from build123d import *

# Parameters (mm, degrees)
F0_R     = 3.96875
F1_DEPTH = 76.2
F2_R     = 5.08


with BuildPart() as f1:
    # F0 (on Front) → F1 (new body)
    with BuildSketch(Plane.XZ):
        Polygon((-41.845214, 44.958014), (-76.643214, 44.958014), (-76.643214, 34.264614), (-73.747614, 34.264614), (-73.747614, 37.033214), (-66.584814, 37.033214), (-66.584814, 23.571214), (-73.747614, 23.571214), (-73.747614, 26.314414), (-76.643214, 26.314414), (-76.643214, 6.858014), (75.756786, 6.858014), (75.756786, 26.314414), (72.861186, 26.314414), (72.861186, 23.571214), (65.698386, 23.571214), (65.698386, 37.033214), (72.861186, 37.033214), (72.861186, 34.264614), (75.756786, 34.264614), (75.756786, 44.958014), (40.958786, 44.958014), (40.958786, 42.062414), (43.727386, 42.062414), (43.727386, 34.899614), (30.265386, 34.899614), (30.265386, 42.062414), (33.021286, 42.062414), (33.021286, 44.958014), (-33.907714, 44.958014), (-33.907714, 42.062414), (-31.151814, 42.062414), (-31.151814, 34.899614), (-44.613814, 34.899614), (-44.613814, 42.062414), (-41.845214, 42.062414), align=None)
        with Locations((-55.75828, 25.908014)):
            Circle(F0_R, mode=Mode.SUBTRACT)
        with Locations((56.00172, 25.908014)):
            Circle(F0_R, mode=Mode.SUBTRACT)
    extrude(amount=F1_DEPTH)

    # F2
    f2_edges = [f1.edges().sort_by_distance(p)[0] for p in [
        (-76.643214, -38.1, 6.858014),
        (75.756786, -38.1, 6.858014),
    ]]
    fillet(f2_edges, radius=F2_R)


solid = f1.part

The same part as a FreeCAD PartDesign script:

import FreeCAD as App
import Part
import Sketcher
from FreeCAD import Vector
Q = App.Units.Quantity


def edges_at(feature, points):
    """Names of the edges that pass closest to the given points."""
    edges = feature.Shape.Edges
    near = lambda p: min(range(len(edges)), key=lambda i: edges[i].distToShape(Part.Vertex(*p))[0])
    return sorted({f"Edge{near(p) + 1}" for p in points})


def add_polygon(sketch, points):
    """Adds a closed chain of lines whose ends are joined by coincident constraints."""
    first, n = sketch.GeometryCount, len(points)
    for a, b in zip(points, points[1:] + points[:1]):
        sketch.addGeometry(Part.LineSegment(App.Vector(*a, 0), App.Vector(*b, 0)), False)
    for i in range(n):
        sketch.addConstraint(Sketcher.Constraint("Coincident", first + i, 2, first + (i + 1) % n, 1))

doc = App.newDocument("Part")
body = doc.addObject("PartDesign::Body", "Body")

# Sketch on XZ plane
sketch1 = body.newObject("Sketcher::SketchObject", "Sketch")
sketch1.AttachmentSupport = (doc.getObject("XZ_Plane"), [""])
sketch1.MapMode = "FlatFace"
add_polygon(sketch1, [(-41.8, 45), (-76.6, 45), (-76.6, 34.3), (-73.7, 34.3), (-73.7, 37), (-66.6, 37), (-66.6, 23.6), (-73.7, 23.6), (-73.7, 26.3), (-76.6, 26.3), (-76.6, 6.9), (75.8, 6.9), (75.8, 26.3), (72.9, 26.3), (72.9, 23.6), (65.7, 23.6), (65.7, 37), (72.9, 37), (72.9, 34.3), (75.8, 34.3), (75.8, 45), (41, 45), (41, 42.1), (43.7, 42.1), (43.7, 34.9), (30.3, 34.9), (30.3, 42.1), (33, 42.1), (33, 45), (-33.9, 45), (-33.9, 42.1), (-31.2, 42.1), (-31.2, 34.9), (-44.6, 34.9), (-44.6, 42.1), (-41.8, 42.1)])  # lines 0-35
sketch1.addGeometry(Part.Circle(Vector(-55.8, 25.9, 0), Vector(0, 0, 1), 4), False)  # 36
sketch1.addGeometry(Part.Circle(Vector(56, 25.9, 0), Vector(0, 0, 1), 4), False)  # 37
sketch1.addConstraint([
    Sketcher.Constraint("Horizontal", 0),
    Sketcher.Constraint("Vertical", 1),
    Sketcher.Constraint("Horizontal", 2),
    Sketcher.Constraint("Vertical", 3),
    Sketcher.Constraint("Horizontal", 4),
    Sketcher.Constraint("Vertical", 5),
    Sketcher.Constraint("Horizontal", 6),
    Sketcher.Constraint("Vertical", 7),
    Sketcher.Constraint("Horizontal", 8),
    Sketcher.Constraint("Vertical", 9),
    Sketcher.Constraint("Horizontal", 10),
    Sketcher.Constraint("Vertical", 11),
    Sketcher.Constraint("Horizontal", 12),
    Sketcher.Constraint("Vertical", 13),
    Sketcher.Constraint("Horizontal", 14),
    Sketcher.Constraint("Vertical", 15),
    Sketcher.Constraint("Horizontal", 16),
    Sketcher.Constraint("Vertical", 17),
    Sketcher.Constraint("Horizontal", 18),
    Sketcher.Constraint("Vertical", 19),
    Sketcher.Constraint("Horizontal", 20),
    Sketcher.Constraint("Vertical", 21),
    Sketcher.Constraint("Horizontal", 22),
    Sketcher.Constraint("Vertical", 23),
    Sketcher.Constraint("Horizontal", 24),
    Sketcher.Constraint("Vertical", 25),
    Sketcher.Constraint("Horizontal", 26),
    Sketcher.Constraint("Vertical", 27),
    Sketcher.Constraint("Horizontal", 28),
    Sketcher.Constraint("Vertical", 29),
    Sketcher.Constraint("Horizontal", 30),
    Sketcher.Constraint("Vertical", 31),
    Sketcher.Constraint("Horizontal", 32),
    Sketcher.Constraint("Vertical", 33),
    Sketcher.Constraint("Horizontal", 34),
    Sketcher.Constraint("Vertical", 35),
    Sketcher.Constraint("Equal", 36, 37),
    Sketcher.Constraint("Horizontal", 36, 3, 37, 3),
    Sketcher.Constraint("Horizontal", 8, 2, 11, 2),
    Sketcher.Constraint("Horizontal", 6, 2, 13, 2),
    Sketcher.Constraint("Horizontal", 4, 2, 15, 2),
    Sketcher.Constraint("Horizontal", 2, 2, 17, 2),
    Sketcher.Constraint("Horizontal", 0, 2, 19, 2),
    Sketcher.Constraint("Horizontal", 22, 2, 25, 2),
    Sketcher.Constraint("Horizontal", 20, 2, 27, 2),
    Sketcher.Constraint("Horizontal", 26, 2, 29, 2),
    Sketcher.Constraint("Horizontal", 24, 2, 31, 2),
    Sketcher.Constraint("Horizontal", 30, 2, 33, 2),
    Sketcher.Constraint("Vertical", 3, 2, 6, 2),
    Sketcher.Constraint("Vertical", 1, 2, 8, 2),
    Sketcher.Constraint("Vertical", 13, 2, 16, 2),
    Sketcher.Constraint("Vertical", 11, 2, 18, 2),
    Sketcher.Constraint("Equal", 8, 12),
    Sketcher.Constraint("Equal", 6, 14),
    Sketcher.Constraint("Equal", 0, 20),
    Sketcher.Constraint("Equal", 26, 30),
    Sketcher.Constraint("Equal", 24, 32),
    Sketcher.Constraint("Equal", 22, 34),
    Sketcher.Constraint("Equal", 34, 3),
    Sketcher.Constraint("Equal", 32, 5),
    Sketcher.Constraint("Equal", 18, 21),
    Sketcher.Constraint("Equal", 16, 23),
    Sketcher.Constraint("DistanceX", 10, 1, 10, 2, Q("6 in")),
    Sketcher.Constraint("Diameter", 36, Q("0.3125 in")),
    Sketcher.Constraint("DistanceX", 0, 2, 0, 1, Q("1.37 in")),
    Sketcher.Constraint("DistanceX", 24, 2, 24, 1, Q("0.53 in")),
    Sketcher.Constraint("DistanceX", 36, 3, 37, 3, Q("4.4 in")),
    Sketcher.Constraint("DistanceX", 2, 1, 2, 2, Q("0.114 in")),
    Sketcher.Constraint("DistanceX", 4, 1, 4, 2, Q("0.282 in")),
    Sketcher.Constraint("DistanceX", 22, 1, 22, 2, Q("0.109 in")),
    Sketcher.Constraint("DistanceX", 28, 2, 28, 1, Q("2.635 in")),
    Sketcher.Constraint("DistanceY", 1, 2, 1, 1, Q("0.421 in")),
    Sketcher.Constraint("DistanceY", 7, 1, 7, 2, Q("0.108 in")),
    Sketcher.Constraint("DistanceY", 9, 2, 9, 1, Q("0.766 in")),
    Sketcher.Constraint("DistanceY", 36, 3, 0, 2, Q("0.75 in")),
    Sketcher.Constraint("DistanceX", 36, 3, -1, 1, Q("55.75828 mm")),
    Sketcher.Constraint("DistanceY", -1, 1, 36, 3, Q("25.908014 mm")),
    Sketcher.Constraint("DistanceX", 0, 2, -1, 1, Q("76.643214 mm")),
])
pad1 = body.newObject("PartDesign::Pad", "Pad")
pad1.Profile = sketch1
pad1.Length = Q("3 in")
doc.recompute()

fillet = body.newObject("PartDesign::Fillet", "Fillet")
fillet.Base = (pad1, edges_at(pad1, [(-76.643, -38.1, 6.858), (75.757, -38.1, 6.858)]))
fillet.Radius = Q("0.2 in")

doc.recompute()
